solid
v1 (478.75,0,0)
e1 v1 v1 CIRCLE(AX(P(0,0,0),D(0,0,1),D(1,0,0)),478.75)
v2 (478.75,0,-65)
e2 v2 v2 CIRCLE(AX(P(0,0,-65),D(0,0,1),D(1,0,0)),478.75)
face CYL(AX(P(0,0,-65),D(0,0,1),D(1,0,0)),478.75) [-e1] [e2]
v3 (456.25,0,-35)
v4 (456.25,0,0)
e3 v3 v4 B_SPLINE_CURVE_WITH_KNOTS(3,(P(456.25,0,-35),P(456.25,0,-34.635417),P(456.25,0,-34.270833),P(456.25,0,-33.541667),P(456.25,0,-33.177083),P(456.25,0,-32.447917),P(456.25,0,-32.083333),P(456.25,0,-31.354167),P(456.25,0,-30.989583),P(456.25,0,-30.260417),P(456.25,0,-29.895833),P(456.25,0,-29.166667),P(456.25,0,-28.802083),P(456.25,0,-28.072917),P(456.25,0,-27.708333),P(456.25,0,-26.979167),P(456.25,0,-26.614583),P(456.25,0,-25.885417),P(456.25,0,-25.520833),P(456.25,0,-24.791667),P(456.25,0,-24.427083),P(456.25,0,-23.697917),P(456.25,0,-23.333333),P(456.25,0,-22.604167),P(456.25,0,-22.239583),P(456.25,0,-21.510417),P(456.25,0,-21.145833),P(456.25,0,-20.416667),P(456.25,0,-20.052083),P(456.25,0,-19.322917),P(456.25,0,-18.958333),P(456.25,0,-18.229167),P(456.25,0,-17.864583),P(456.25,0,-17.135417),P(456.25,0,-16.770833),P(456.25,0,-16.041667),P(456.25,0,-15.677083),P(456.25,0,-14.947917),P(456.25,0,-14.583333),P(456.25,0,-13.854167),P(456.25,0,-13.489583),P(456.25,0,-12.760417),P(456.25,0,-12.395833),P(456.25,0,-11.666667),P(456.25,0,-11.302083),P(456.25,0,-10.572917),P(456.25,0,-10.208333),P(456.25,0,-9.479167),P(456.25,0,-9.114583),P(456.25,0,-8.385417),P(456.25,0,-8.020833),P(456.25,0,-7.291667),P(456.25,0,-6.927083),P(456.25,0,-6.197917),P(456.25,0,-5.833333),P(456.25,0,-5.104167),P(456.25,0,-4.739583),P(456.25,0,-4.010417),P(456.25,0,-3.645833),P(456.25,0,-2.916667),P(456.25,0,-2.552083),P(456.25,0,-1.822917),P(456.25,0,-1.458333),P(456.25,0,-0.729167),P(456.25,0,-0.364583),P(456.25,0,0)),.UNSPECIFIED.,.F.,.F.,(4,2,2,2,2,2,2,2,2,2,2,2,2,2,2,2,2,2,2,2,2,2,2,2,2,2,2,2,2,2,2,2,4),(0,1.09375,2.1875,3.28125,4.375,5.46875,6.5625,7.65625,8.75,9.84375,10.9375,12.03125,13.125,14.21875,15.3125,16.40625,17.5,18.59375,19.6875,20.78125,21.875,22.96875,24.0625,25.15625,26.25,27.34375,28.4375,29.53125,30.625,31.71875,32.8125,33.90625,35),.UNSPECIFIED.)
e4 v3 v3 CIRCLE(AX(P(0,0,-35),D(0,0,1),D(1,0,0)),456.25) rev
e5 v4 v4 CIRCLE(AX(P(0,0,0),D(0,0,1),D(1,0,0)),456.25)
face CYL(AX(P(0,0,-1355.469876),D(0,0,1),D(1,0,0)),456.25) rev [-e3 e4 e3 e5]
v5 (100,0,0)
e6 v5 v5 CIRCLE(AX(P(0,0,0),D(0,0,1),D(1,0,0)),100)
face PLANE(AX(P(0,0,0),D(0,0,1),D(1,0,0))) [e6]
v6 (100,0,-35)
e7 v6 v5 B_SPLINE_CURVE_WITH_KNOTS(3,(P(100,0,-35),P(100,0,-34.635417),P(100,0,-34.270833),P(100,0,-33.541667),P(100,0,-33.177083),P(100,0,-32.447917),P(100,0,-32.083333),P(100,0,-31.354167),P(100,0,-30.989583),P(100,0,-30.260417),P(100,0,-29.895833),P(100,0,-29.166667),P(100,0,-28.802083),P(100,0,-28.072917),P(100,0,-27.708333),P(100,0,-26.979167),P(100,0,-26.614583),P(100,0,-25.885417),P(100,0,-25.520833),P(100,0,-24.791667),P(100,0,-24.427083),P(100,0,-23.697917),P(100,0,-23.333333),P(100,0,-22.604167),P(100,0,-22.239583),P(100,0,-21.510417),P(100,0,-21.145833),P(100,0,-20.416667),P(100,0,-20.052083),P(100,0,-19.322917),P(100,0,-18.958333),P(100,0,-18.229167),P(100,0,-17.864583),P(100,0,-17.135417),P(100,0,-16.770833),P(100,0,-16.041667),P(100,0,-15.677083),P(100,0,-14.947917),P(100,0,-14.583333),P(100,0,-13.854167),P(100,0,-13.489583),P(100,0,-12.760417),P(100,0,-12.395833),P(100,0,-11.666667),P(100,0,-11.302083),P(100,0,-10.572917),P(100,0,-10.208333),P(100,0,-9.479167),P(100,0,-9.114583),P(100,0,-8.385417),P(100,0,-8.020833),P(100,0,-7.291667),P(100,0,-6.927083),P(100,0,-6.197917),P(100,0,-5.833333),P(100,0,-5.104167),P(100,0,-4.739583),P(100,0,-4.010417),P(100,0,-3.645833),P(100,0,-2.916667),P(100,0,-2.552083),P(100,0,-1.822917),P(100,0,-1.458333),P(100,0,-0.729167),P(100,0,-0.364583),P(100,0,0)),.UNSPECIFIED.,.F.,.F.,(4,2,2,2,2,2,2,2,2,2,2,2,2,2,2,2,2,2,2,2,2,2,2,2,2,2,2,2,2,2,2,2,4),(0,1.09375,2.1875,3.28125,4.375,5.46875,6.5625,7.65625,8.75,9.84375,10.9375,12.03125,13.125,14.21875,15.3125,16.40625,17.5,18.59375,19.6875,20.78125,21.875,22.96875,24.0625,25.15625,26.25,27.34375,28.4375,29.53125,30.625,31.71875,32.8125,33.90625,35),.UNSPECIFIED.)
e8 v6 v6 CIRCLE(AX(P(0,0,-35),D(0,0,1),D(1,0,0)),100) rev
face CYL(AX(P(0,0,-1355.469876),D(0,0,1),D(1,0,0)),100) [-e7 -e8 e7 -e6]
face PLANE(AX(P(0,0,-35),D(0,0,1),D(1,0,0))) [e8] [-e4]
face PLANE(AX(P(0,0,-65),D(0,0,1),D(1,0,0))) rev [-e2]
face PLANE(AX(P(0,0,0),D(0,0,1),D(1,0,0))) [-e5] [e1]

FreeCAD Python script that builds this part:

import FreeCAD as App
import Part
import Sketcher

V = App.Vector
Q = App.Units.Quantity

doc = App.newDocument("Part")
params = doc.addObject("Spreadsheet::Sheet", "Params")
for row, (alias, value) in enumerate([
    ("sketch1_diameter", "957.5 mm"),
    ("pad1_length", "65 mm"),
    ("sketch2_diameter", "200 mm"),
    ("sketch2_diameter2", "912.5 mm"),
    ("pocket1_length", "35 mm"),
], start=1):
    params.set(f"A{row}", alias)
    params.set(f"B{row}", "=" + value)
    params.setAlias(f"B{row}", alias)

body = doc.addObject("PartDesign::Body", "Body")

# Sketch on XY plane
sketch1 = doc.addObject("Sketcher::SketchObject", "Sketch")
body.addObject(sketch1)
sketch1.AttachmentSupport = (doc.XY_Plane, [""])
sketch1.MapMode = "FlatFace"
sketch1.addGeometry(Part.Circle(V(0, 0, 0), V(0, 0, 1), 479), False)
sketch1.addConstraint([
    Sketcher.Constraint("Coincident", 0, 3, -1, 1),
    Sketcher.Constraint("Diameter", 0, Q("957.5 mm")),
])
sketch1.setExpression("Constraints[1]", "Params.sketch1_diameter")
pad1 = doc.addObject("PartDesign::Pad", "Pad")
body.addObject(pad1)
pad1.Profile = sketch1
pad1.setExpression("Length", "Params.pad1_length")
pad1.Reversed = True

# Sketch on XY plane
sketch2 = doc.addObject("Sketcher::SketchObject", "Sketch001")
body.addObject(sketch2)
sketch2.AttachmentSupport = (doc.XY_Plane, [""])
sketch2.MapMode = "FlatFace"
sketch2.addGeometry([
    Part.Circle(V(0, 0, 0), V(0, 0, 1), 456),
    Part.Circle(V(0, 0, 0), V(0, 0, 1), 100),
], False)
sketch2.addConstraint([
    Sketcher.Constraint("Coincident", 0, 3, -1, 1),
    Sketcher.Constraint("Coincident", 1, 3, -1, 1),
    Sketcher.Constraint("Diameter", 1, Q("200 mm")),
    Sketcher.Constraint("Diameter", 0, Q("912.5 mm")),
])
sketch2.setExpression("Constraints[2]", "Params.sketch2_diameter")
sketch2.setExpression("Constraints[3]", "Params.sketch2_diameter2")
pocket1 = doc.addObject("PartDesign::Pocket", "Pocket")
body.addObject(pocket1)
pocket1.Profile = sketch2
pocket1.setExpression("Length", "Params.pocket1_length")

doc.recompute()
